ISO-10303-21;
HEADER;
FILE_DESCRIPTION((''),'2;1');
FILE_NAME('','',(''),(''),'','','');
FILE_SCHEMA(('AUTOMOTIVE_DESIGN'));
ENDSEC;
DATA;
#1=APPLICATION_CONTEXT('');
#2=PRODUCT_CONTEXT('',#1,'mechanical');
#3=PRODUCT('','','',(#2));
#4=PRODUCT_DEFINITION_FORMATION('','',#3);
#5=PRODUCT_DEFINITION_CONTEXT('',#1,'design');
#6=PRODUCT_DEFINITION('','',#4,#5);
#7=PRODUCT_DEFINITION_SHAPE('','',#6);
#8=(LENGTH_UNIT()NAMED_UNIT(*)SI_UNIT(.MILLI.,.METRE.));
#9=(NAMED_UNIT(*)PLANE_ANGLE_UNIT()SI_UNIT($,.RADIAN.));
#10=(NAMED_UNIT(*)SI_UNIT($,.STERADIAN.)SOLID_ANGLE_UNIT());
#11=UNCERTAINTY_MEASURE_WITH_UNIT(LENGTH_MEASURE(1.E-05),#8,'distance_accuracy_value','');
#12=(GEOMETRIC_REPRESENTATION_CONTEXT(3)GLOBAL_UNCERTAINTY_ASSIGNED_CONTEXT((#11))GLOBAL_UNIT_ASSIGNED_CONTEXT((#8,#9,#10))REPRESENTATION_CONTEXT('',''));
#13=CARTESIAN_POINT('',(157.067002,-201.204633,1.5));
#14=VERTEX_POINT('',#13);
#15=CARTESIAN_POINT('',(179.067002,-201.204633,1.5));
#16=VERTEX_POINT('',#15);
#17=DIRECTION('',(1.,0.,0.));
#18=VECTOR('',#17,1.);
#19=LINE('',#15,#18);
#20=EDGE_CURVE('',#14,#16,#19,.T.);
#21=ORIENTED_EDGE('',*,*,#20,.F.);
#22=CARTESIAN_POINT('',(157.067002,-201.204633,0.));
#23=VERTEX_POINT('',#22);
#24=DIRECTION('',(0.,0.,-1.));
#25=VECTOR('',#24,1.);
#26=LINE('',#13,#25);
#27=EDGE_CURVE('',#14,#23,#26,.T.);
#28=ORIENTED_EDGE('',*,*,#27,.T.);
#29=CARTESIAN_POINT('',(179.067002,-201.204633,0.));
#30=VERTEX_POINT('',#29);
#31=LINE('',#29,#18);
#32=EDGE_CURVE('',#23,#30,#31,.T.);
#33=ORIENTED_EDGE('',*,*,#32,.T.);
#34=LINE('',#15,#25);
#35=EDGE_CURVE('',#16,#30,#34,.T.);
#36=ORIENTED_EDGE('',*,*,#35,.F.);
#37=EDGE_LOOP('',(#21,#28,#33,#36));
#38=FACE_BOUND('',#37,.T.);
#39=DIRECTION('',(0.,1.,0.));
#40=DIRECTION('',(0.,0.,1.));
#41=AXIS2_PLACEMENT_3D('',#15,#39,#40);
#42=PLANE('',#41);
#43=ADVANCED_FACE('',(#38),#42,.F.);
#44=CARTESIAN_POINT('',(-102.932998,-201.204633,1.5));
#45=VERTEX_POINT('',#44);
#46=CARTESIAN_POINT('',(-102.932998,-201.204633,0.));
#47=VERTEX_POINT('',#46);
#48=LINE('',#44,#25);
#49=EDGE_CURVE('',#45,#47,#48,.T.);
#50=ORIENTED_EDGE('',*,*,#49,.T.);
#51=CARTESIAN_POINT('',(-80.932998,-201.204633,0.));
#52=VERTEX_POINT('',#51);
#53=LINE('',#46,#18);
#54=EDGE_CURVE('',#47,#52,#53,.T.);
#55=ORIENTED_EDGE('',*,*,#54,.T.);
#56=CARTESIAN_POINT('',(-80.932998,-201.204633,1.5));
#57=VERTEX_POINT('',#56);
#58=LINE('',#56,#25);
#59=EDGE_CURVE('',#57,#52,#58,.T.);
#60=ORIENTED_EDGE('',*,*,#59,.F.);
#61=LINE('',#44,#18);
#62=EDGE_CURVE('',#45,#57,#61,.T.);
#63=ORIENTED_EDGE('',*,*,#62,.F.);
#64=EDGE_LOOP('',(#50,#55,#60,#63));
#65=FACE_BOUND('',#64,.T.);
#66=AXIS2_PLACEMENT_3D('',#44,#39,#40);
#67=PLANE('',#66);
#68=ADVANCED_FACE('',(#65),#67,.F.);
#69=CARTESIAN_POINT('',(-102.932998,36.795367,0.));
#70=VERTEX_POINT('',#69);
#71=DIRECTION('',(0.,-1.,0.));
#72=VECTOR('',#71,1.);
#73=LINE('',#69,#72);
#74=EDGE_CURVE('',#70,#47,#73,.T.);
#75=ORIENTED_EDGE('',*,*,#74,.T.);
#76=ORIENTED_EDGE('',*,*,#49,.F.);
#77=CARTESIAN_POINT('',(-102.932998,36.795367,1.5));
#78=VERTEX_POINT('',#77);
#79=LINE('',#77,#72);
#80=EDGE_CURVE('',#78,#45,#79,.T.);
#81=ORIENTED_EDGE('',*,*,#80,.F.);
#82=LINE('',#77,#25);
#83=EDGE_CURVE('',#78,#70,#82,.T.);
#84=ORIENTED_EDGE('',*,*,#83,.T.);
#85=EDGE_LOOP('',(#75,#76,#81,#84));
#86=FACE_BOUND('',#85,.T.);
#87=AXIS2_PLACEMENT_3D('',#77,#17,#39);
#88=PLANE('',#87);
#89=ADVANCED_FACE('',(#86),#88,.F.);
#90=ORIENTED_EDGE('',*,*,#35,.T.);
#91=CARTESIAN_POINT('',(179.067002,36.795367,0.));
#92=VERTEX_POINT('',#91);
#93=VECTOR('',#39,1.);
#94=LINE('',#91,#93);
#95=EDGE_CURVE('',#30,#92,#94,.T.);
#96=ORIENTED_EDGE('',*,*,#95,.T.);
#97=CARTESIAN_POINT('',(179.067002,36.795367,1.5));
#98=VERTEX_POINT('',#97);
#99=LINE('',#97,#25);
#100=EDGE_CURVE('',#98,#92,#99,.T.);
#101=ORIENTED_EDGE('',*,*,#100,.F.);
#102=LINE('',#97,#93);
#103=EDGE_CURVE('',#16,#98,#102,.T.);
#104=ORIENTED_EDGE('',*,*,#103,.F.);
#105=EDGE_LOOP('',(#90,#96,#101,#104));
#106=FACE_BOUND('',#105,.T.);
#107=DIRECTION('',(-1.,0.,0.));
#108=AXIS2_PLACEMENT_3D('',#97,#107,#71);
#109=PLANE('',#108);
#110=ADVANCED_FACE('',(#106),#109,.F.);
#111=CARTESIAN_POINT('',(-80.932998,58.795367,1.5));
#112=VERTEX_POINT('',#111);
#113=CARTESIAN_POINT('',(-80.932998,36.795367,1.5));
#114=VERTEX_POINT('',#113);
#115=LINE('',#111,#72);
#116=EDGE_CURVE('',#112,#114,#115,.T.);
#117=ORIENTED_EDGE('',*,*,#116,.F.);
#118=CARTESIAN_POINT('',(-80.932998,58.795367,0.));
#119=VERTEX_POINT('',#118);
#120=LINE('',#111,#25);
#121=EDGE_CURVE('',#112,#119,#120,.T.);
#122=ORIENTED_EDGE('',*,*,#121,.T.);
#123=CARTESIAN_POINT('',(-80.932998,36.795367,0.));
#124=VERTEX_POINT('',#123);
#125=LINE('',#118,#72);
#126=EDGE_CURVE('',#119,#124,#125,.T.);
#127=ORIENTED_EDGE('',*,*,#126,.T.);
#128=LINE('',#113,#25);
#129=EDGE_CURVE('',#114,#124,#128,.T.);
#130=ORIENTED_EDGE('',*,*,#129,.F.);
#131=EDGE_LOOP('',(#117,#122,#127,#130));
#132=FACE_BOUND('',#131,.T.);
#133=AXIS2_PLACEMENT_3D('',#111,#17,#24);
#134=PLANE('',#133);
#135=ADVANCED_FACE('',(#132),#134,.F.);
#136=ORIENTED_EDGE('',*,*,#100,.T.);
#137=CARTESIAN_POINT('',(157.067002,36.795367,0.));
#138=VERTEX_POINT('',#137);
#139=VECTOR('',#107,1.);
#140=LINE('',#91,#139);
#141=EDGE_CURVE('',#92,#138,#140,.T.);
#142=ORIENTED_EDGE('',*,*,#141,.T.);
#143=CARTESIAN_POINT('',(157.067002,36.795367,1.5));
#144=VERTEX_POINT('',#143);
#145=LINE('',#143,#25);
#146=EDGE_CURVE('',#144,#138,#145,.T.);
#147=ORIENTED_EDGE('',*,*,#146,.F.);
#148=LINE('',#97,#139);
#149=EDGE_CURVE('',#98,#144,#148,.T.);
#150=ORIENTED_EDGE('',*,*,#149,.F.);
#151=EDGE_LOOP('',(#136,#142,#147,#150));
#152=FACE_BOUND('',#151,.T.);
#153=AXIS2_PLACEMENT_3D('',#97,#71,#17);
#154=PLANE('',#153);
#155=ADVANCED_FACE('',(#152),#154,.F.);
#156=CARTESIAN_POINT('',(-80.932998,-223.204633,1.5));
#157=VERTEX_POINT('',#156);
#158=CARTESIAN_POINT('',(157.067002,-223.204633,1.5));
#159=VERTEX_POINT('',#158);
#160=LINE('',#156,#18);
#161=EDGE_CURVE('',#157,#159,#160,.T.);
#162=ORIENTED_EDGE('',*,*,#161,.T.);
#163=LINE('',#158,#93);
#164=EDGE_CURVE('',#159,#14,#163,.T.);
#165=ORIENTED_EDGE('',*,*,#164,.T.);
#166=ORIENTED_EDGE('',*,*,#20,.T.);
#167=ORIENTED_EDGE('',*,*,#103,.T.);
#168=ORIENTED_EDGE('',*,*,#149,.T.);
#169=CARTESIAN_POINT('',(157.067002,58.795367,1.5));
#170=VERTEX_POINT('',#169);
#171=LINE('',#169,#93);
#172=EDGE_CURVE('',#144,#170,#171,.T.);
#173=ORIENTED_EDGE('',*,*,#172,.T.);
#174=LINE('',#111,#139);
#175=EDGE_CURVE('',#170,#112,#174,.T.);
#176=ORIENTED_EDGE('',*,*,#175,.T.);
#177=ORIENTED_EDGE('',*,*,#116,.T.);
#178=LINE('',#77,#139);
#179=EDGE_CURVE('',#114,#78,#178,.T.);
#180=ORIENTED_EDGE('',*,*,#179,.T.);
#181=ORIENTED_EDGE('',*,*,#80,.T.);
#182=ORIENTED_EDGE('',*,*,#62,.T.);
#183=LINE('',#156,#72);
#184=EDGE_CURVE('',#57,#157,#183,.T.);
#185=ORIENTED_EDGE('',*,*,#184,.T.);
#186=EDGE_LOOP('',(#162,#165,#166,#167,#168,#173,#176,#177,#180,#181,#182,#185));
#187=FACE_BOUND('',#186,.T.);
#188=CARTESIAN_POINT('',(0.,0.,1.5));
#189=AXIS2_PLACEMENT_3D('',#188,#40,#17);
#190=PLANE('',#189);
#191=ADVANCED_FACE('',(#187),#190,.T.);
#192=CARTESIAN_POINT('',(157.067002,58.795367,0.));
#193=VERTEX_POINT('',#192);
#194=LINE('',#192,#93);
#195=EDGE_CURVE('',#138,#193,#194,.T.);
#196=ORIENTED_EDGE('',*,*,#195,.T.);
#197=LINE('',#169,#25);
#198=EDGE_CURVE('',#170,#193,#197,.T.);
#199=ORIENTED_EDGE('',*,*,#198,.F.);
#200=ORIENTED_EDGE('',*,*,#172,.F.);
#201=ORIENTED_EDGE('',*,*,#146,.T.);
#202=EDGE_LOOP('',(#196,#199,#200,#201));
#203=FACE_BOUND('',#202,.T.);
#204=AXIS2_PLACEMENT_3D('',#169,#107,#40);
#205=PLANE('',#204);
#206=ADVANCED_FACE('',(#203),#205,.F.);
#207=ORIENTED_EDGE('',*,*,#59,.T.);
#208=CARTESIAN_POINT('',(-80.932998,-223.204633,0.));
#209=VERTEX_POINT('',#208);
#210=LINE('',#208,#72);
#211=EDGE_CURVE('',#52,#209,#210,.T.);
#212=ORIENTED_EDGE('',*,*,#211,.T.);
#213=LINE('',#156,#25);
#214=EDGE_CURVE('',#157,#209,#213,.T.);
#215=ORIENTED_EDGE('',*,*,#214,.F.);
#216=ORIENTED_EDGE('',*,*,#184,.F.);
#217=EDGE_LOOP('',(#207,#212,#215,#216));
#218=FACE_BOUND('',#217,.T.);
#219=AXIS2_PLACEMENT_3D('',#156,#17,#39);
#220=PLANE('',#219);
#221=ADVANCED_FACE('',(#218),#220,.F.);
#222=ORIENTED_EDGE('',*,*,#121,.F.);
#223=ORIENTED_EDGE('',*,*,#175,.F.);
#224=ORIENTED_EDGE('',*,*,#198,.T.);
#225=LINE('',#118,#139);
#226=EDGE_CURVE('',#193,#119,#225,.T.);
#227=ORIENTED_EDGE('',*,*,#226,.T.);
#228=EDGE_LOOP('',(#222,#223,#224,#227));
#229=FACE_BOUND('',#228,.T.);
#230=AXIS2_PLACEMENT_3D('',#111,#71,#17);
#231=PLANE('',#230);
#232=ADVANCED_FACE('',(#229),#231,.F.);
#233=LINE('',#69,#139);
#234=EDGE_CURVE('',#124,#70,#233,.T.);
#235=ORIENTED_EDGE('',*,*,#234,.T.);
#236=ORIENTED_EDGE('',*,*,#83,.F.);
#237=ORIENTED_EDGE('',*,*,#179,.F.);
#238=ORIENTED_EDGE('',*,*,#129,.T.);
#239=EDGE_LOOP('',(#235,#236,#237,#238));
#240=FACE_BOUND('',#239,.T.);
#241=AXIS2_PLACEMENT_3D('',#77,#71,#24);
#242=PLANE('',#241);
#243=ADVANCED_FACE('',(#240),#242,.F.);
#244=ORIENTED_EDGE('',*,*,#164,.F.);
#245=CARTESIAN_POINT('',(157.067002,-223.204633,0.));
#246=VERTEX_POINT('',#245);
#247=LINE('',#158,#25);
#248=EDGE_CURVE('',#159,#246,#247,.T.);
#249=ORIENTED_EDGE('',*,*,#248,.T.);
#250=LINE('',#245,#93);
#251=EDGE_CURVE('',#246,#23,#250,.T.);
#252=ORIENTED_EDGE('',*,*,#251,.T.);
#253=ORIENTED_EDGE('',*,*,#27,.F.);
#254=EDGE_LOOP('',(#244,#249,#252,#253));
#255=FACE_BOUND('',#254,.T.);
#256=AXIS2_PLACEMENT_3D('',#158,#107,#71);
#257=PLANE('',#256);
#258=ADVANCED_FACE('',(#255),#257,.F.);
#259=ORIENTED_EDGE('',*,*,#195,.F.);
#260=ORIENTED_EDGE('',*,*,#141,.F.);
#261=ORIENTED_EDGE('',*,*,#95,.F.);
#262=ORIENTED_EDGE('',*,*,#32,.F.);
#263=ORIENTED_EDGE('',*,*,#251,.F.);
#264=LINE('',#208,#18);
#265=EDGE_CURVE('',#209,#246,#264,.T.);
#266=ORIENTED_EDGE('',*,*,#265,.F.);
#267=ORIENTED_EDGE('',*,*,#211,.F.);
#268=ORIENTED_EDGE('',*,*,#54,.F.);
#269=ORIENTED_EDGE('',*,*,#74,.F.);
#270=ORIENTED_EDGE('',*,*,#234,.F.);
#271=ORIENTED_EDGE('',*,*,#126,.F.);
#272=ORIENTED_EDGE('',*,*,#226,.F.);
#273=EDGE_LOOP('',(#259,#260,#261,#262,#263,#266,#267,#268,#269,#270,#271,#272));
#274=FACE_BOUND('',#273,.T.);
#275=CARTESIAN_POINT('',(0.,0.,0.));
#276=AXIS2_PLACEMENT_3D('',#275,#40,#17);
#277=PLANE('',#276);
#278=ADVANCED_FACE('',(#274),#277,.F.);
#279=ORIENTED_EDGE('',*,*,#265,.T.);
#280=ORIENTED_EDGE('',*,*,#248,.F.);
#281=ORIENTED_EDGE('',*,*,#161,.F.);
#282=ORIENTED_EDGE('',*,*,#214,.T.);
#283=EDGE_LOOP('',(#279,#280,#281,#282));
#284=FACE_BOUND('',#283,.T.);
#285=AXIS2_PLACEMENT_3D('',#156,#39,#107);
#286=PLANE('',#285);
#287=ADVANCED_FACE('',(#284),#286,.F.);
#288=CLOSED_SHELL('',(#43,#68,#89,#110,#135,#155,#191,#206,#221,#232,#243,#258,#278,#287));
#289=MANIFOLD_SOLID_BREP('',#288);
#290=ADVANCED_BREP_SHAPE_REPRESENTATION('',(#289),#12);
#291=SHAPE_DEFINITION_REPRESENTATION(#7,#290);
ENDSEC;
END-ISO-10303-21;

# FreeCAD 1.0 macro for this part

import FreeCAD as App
import Part
import Sketcher
from FreeCAD import Vector

doc = App.newDocument("Part")
body = doc.addObject("PartDesign::Body", "Body")

# Sketch on XY plane
sketch1 = body.newObject("Sketcher::SketchObject", "Sketch")
sketch1.AttachmentSupport = (doc.getObject("XY_Plane"), [""])
sketch1.MapMode = "FlatFace"
sketch1.addGeometry([
    Part.LineSegment(Vector(157, 59, 0), Vector(-81, 59, 0)),  # 0
    Part.LineSegment(Vector(-81, 59, 0), Vector(-81, 37, 0)),  # 1
    Part.LineSegment(Vector(-81, 37, 0), Vector(-103, 37, 0)),  # 2
    Part.LineSegment(Vector(-103, 37, 0), Vector(-103, -201, 0)),  # 3
    Part.LineSegment(Vector(-103, -201, 0), Vector(-81, -201, 0)),  # 4
    Part.LineSegment(Vector(-81, -201, 0), Vector(-81, -223, 0)),  # 5
    Part.LineSegment(Vector(-81, -223, 0), Vector(157, -223, 0)),  # 6
    Part.LineSegment(Vector(157, -223, 0), Vector(157, -201, 0)),  # 7
    Part.LineSegment(Vector(157, -201, 0), Vector(179, -201, 0)),  # 8
    Part.LineSegment(Vector(179, -201, 0), Vector(179, 37, 0)),  # 9
    Part.LineSegment(Vector(179, 37, 0), Vector(157, 37, 0)),  # 10
    Part.LineSegment(Vector(157, 37, 0), Vector(157, 59, 0)),  # 11
], False)
sketch1.addConstraint([
    Sketcher.Constraint("Coincident", 0, 2, 1, 1),
    Sketcher.Constraint("Coincident", 1, 2, 2, 1),
    Sketcher.Constraint("Coincident", 2, 2, 3, 1),
    Sketcher.Constraint("Coincident", 3, 2, 4, 1),
    Sketcher.Constraint("Coincident", 4, 2, 5, 1),
    Sketcher.Constraint("Coincident", 5, 2, 6, 1),
    Sketcher.Constraint("Coincident", 6, 2, 7, 1),
    Sketcher.Constraint("Coincident", 7, 2, 8, 1),
    Sketcher.Constraint("Coincident", 8, 2, 9, 1),
    Sketcher.Constraint("Coincident", 9, 2, 10, 1),
    Sketcher.Constraint("Coincident", 10, 2, 11, 1),
    Sketcher.Constraint("Coincident", 11, 2, 0, 1),
    Sketcher.Constraint("Horizontal", 0),
    Sketcher.Constraint("Vertical", 1),
    Sketcher.Constraint("Horizontal", 2),
    Sketcher.Constraint("Vertical", 3),
    Sketcher.Constraint("Horizontal", 4),
    Sketcher.Constraint("Vertical", 5),
    Sketcher.Constraint("Horizontal", 6),
    Sketcher.Constraint("Vertical", 7),
    Sketcher.Constraint("Horizontal", 8),
    Sketcher.Constraint("Vertical", 9),
    Sketcher.Constraint("Horizontal", 10),
    Sketcher.Constraint("Vertical", 11),
    Sketcher.Constraint("Horizontal", 4, 2, 7, 2),
    Sketcher.Constraint("Horizontal", 2, 2, 9, 2),
    Sketcher.Constraint("Vertical", 1, 2, 4, 2),
    Sketcher.Constraint("Vertical", 7, 2, 10, 2),
    Sketcher.Constraint("Equal", 4, 8),
    Sketcher.Constraint("Equal", 10, 1),
    Sketcher.Constraint("Equal", 6, 3),
    Sketcher.Constraint("Equal", 1, 5),
    Sketcher.Constraint("DistanceX", 0, 2, 0, 1, 238.0),
    Sketcher.Constraint("DistanceX", 2, 2, 2, 1, 22.0),
    Sketcher.Constraint("DistanceX", 0, 2, -1, 1, 80.932998),
    Sketcher.Constraint("DistanceY", -1, 1, 0, 2, 58.795367),
])
pad1 = body.newObject("PartDesign::Pad", "Pad")
pad1.Profile = sketch1
pad1.Length = 1.5

doc.recompute()
